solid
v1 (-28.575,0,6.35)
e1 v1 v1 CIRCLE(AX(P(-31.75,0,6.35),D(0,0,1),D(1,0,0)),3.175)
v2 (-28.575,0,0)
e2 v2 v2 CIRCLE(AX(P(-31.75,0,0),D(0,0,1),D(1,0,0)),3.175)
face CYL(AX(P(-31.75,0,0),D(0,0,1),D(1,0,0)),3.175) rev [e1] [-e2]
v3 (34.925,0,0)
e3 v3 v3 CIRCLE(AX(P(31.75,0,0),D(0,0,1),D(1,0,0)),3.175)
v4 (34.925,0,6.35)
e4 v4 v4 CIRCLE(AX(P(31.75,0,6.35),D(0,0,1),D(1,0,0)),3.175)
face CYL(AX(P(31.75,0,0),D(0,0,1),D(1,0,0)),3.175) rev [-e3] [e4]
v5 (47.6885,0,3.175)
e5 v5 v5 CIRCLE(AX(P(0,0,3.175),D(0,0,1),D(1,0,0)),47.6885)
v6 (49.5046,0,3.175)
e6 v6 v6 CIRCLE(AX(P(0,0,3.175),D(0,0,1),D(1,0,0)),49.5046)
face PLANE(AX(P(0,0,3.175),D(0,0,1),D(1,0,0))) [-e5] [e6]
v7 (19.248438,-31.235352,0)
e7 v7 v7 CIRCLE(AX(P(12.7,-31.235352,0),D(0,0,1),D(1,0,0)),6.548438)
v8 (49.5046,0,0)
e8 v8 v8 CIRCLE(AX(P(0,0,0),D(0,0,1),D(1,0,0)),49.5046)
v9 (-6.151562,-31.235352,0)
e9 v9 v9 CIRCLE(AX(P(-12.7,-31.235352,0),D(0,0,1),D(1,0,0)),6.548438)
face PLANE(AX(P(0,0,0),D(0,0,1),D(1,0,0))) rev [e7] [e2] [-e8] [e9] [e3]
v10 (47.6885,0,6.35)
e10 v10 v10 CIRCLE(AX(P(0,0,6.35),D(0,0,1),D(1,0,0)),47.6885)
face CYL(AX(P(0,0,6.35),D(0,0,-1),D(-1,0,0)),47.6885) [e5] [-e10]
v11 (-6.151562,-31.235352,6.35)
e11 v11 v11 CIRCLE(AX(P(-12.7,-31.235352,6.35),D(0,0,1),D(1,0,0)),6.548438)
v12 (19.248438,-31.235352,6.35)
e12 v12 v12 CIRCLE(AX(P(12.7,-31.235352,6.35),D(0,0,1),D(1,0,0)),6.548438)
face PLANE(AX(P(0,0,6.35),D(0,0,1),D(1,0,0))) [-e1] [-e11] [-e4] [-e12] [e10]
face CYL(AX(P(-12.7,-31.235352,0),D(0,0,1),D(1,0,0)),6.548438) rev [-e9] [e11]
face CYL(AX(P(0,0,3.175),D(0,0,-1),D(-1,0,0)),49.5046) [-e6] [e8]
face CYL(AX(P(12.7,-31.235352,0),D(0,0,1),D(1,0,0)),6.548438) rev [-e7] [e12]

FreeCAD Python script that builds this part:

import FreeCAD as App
import Part
import Sketcher
Q = App.Units.Quantity

doc = App.newDocument("Part")
body = doc.addObject("PartDesign::Body", "Body")

# Sketch on XY plane
sketch1 = body.newObject("Sketcher::SketchObject", "Sketch")
sketch1.AttachmentSupport = (doc.getObject("XY_Plane"), [""])
sketch1.MapMode = "FlatFace"
sketch1.addGeometry(Part.Circle(App.Vector(0, 0, 0), App.Vector(0, 0, 1), 50), False)
sketch1.addConstraint([
    Sketcher.Constraint("Coincident", 0, 3, -1, 1),
    Sketcher.Constraint("Diameter", 0, Q("3.898 in")),
])
pad1 = body.newObject("PartDesign::Pad", "Pad")
pad1.Profile = sketch1
pad1.Length = Q("0.125 in")

# Sketch on XY plane
sketch2 = body.newObject("Sketcher::SketchObject", "Sketch001")
sketch2.AttachmentSupport = (doc.getObject("XY_Plane"), [""])
sketch2.MapMode = "FlatFace"
sketch2.AttachmentOffset = App.Placement(App.Vector(0, 0, 0.125 * 25.4), App.Rotation())
sketch2.addGeometry(Part.Circle(App.Vector(0, 0, 0), App.Vector(0, 0, 1), 48), False)
sketch2.addConstraint([
    Sketcher.Constraint("Coincident", 0, 3, -1, 1),
    Sketcher.Constraint("Diameter", 0, Q("3.755 in")),
])
pad2 = body.newObject("PartDesign::Pad", "Pad001")
pad2.Profile = sketch2
pad2.Length = Q("0.125 in")

# Sketch on XY plane
sketch3 = body.newObject("Sketcher::SketchObject", "Sketch002")
sketch3.AttachmentSupport = (doc.getObject("XY_Plane"), [""])
sketch3.MapMode = "FlatFace"
sketch3.AttachmentOffset = App.Placement(App.Vector(0, 0, 0.25 * 25.4), App.Rotation())
sketch3.addGeometry([
    Part.Circle(App.Vector(-12.7, -31.2, 0), App.Vector(0, 0, 1), 6.5),
    Part.Circle(App.Vector(12.7, -31.2, 0), App.Vector(0, 0, 1), 6.5),
    Part.Circle(App.Vector(-31.8, 0, 0), App.Vector(0, 0, 1), 3.2),
    Part.Circle(App.Vector(31.8, 0, 0), App.Vector(0, 0, 1), 3.2),
], False)
sketch3.addConstraint([
    Sketcher.Constraint("Equal", 0, 1),
    Sketcher.Constraint("Equal", 2, 3),
    Sketcher.Constraint("Symmetric", 2, 3, 3, 3, -1, 1),
    Sketcher.Constraint("Symmetric", 0, 3, 1, 3, -2),
    Sketcher.Constraint("PointOnObject", 2, 3, -1),
    Sketcher.Constraint("Diameter", 2, Q("0.25 in")),
    Sketcher.Constraint("Diameter", 0, Q("0.515625 in")),
    Sketcher.Constraint("DistanceX", 0, 3, 1, 3, Q("1 in")),
    Sketcher.Constraint("DistanceX", 2, 3, 3, 3, Q("2.5 in")),
    Sketcher.Constraint("DistanceY", 0, 3, -1, 1, 31.235352),
])
pocket1 = body.newObject("PartDesign::Pocket", "Pocket")
pocket1.Profile = sketch3
pocket1.Type = "ThroughAll"

doc.recompute()
